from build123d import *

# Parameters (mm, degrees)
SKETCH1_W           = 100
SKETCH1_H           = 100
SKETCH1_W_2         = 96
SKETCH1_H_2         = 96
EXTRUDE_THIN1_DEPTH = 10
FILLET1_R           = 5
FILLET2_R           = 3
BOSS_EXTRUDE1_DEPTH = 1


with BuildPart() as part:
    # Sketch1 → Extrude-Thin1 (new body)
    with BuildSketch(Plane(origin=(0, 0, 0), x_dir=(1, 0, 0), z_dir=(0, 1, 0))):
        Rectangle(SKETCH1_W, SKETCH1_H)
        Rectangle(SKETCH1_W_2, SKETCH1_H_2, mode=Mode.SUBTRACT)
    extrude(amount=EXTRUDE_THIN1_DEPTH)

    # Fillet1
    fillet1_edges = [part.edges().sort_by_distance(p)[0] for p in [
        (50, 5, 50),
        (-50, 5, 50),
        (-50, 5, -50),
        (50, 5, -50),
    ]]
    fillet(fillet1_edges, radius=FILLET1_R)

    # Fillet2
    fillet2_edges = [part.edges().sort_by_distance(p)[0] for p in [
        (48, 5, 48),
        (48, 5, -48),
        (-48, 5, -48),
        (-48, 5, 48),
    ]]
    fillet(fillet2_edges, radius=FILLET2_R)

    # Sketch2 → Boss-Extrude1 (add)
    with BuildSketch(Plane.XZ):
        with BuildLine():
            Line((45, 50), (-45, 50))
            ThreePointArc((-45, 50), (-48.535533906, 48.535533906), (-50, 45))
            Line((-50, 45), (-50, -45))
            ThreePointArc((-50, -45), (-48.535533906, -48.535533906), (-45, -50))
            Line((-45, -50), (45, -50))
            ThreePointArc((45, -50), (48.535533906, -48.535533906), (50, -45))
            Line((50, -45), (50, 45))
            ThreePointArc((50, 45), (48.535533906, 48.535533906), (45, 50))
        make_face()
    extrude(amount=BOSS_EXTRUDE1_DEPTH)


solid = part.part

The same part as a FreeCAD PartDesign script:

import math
import FreeCAD as App
import Part
import Sketcher
from FreeCAD import Vector
Q = App.Units.Quantity


def edges_at(feature, points):
    """Names of the edges that pass closest to the given points."""
    edges = feature.Shape.Edges
    near = lambda p: min(range(len(edges)), key=lambda i: edges[i].distToShape(Part.Vertex(*p))[0])
    return sorted({f"Edge{near(p) + 1}" for p in points})


def add_polygon(sketch, points):
    """Adds a closed chain of lines whose ends are joined by coincident constraints."""
    first, n = sketch.GeometryCount, len(points)
    for a, b in zip(points, points[1:] + points[:1]):
        sketch.addGeometry(Part.LineSegment(App.Vector(*a, 0), App.Vector(*b, 0)), False)
    for i in range(n):
        sketch.addConstraint(Sketcher.Constraint("Coincident", first + i, 2, first + (i + 1) % n, 1))

doc = App.newDocument("Part")
params = doc.addObject("Spreadsheet::Sheet", "Params")
for row, (alias, value) in enumerate([
    ("sketch1_width", "100 mm"),
    ("sketch1_width2", "96 mm"),
    ("pad1_length", "10 mm"),
    ("fillet_radius", "5 mm"),
    ("fillet2_radius", "3 mm"),
    ("sketch2_radius", "5 mm"),
    ("sketch2_width", "90 mm"),
    ("pad2_length", "1 mm"),
], start=1):
    params.set(f"A{row}", alias)
    params.set(f"B{row}", "=" + value)
    params.setAlias(f"B{row}", alias)

body = doc.addObject("PartDesign::Body", "Body")

# Sketch on XZ plane
sketch1 = body.newObject("Sketcher::SketchObject", "Sketch")
sketch1.AttachmentSupport = (doc.getObject("XZ_Plane"), [""])
sketch1.MapMode = "FlatFace"
add_polygon(sketch1, [(-50, -50), (-50, 50), (50, 50), (50, -50)])  # lines 0-3
add_polygon(sketch1, [(48, 48), (-48, 48), (-48, -48), (48, -48)])  # lines 4-7
sketch1.addConstraint(Sketcher.Constraint("Vertical", 0))
sketch1.addConstraint(Sketcher.Constraint("Horizontal", 1))
sketch1.addConstraint(Sketcher.Constraint("Vertical", 2))
sketch1.addConstraint(Sketcher.Constraint("Horizontal", 3))
sketch1.addConstraint(Sketcher.Constraint("Horizontal", 4))
sketch1.addConstraint(Sketcher.Constraint("Vertical", 5))
sketch1.addConstraint(Sketcher.Constraint("Horizontal", 6))
sketch1.addConstraint(Sketcher.Constraint("Vertical", 7))
sketch1.addConstraint(Sketcher.Constraint("Symmetric", 0, 2, 2, 2, -1, 1))
sketch1.addConstraint(Sketcher.Constraint("Symmetric", 4, 2, 6, 2, -1, 1))
sketch1.addConstraint(Sketcher.Constraint("Equal", 3, 0))
sketch1.addConstraint(Sketcher.Constraint("Equal", 6, 5))
sketch1.addConstraint(Sketcher.Constraint("DistanceX", 1, 1, 1, 2, Q("100 mm")))
sketch1.addConstraint(Sketcher.Constraint("DistanceX", 4, 2, 4, 1, Q("96 mm")))
sketch1.setExpression("Constraints[20]", "Params.sketch1_width")
sketch1.setExpression("Constraints[21]", "Params.sketch1_width2")
pad1 = body.newObject("PartDesign::Pad", "Pad")
pad1.Profile = sketch1
pad1.setExpression("Length", "Params.pad1_length")
pad1.Reversed = True
doc.recompute()

fillet = body.newObject("PartDesign::Fillet", "Fillet")
fillet.Base = (pad1, edges_at(pad1, [
    (50, 5, 50),
    (-50, 5, 50),
    (-50, 5, -50),
    (50, 5, -50),
]))
fillet.setExpression("Radius", "Params.fillet_radius")
doc.recompute()

fillet2 = body.newObject("PartDesign::Fillet", "Fillet001")
fillet2.Base = (fillet, edges_at(fillet, [
    (48, 5, 48),
    (48, 5, -48),
    (-48, 5, -48),
    (-48, 5, 48),
]))
fillet2.setExpression("Radius", "Params.fillet2_radius")

# Sketch on XZ plane
sketch2 = body.newObject("Sketcher::SketchObject", "Sketch001")
sketch2.AttachmentSupport = (doc.getObject("XZ_Plane"), [""])
sketch2.MapMode = "FlatFace"
sketch2.addGeometry(Part.LineSegment(Vector(45, 50, 0), Vector(-45, 50, 0)), False)
sketch2.addGeometry(Part.ArcOfCircle(Part.Circle(Vector(-45, 45, 0), Vector(0, 0, 1), 5), math.radians(90), math.radians(180)), False)
sketch2.addGeometry(Part.LineSegment(Vector(-50, 45, 0), Vector(-50, -45, 0)), False)
sketch2.addGeometry(Part.ArcOfCircle(Part.Circle(Vector(-45, -45, 0), Vector(0, 0, 1), 5), math.radians(180), math.radians(270)), False)
sketch2.addGeometry(Part.LineSegment(Vector(-45, -50, 0), Vector(45, -50, 0)), False)
sketch2.addGeometry(Part.ArcOfCircle(Part.Circle(Vector(45, -45, 0), Vector(0, 0, 1), 5), math.radians(-90), math.radians(0)), False)
sketch2.addGeometry(Part.LineSegment(Vector(50, -45, 0), Vector(50, 45, 0)), False)
sketch2.addGeometry(Part.ArcOfCircle(Part.Circle(Vector(45, 45, 0), Vector(0, 0, 1), 5), math.radians(0), math.radians(90)), False)
sketch2.addConstraint(Sketcher.Constraint("Tangent", 0, 2, 1, 1))
sketch2.addConstraint(Sketcher.Constraint("Tangent", 1, 2, 2, 1))
sketch2.addConstraint(Sketcher.Constraint("Tangent", 2, 2, 3, 1))
sketch2.addConstraint(Sketcher.Constraint("Tangent", 3, 2, 4, 1))
sketch2.addConstraint(Sketcher.Constraint("Tangent", 4, 2, 5, 1))
sketch2.addConstraint(Sketcher.Constraint("Tangent", 5, 2, 6, 1))
sketch2.addConstraint(Sketcher.Constraint("Tangent", 6, 2, 7, 1))
sketch2.addConstraint(Sketcher.Constraint("Tangent", 7, 2, 0, 1))
sketch2.addConstraint(Sketcher.Constraint("Horizontal", 0))
sketch2.addConstraint(Sketcher.Constraint("Vertical", 2))
sketch2.addConstraint(Sketcher.Constraint("Horizontal", 4))
sketch2.addConstraint(Sketcher.Constraint("Vertical", 6))
sketch2.addConstraint(Sketcher.Constraint("Equal", 1, 3))
sketch2.addConstraint(Sketcher.Constraint("Equal", 3, 5))
sketch2.addConstraint(Sketcher.Constraint("Equal", 5, 7))
sketch2.addConstraint(Sketcher.Constraint("Symmetric", 1, 3, 5, 3, -1, 1))
sketch2.addConstraint(Sketcher.Constraint("Equal", 4, 2))
sketch2.addConstraint(Sketcher.Constraint("Radius", 1, Q("5 mm")))
sketch2.addConstraint(Sketcher.Constraint("DistanceX", 0, 2, 0, 1, Q("90 mm")))
sketch2.setExpression("Constraints[17]", "Params.sketch2_radius")
sketch2.setExpression("Constraints[18]", "Params.sketch2_width")
pad2 = body.newObject("PartDesign::Pad", "Pad001")
pad2.Profile = sketch2
pad2.setExpression("Length", "Params.pad2_length")

doc.recompute()
